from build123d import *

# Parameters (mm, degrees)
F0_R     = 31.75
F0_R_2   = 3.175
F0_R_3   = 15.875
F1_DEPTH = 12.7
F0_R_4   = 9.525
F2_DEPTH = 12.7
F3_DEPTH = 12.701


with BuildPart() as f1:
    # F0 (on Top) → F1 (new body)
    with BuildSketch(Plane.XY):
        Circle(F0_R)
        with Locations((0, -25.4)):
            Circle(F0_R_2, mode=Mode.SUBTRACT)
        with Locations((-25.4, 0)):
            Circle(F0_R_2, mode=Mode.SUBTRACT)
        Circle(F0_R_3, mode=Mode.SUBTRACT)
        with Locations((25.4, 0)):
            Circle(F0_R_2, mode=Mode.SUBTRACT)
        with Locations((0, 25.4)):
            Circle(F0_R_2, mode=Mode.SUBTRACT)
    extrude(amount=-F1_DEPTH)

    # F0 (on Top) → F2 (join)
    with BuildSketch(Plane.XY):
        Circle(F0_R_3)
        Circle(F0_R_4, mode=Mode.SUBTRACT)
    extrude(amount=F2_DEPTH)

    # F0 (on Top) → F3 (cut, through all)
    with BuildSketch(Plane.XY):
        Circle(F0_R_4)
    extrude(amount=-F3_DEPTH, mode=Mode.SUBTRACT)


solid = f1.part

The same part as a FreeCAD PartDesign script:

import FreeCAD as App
import Part
import Sketcher
from FreeCAD import Vector
Q = App.Units.Quantity

doc = App.newDocument("Part")
body = doc.addObject("PartDesign::Body", "Body")
body.AllowCompound = True

# Sketch on XY plane
sketch1 = doc.addObject("Sketcher::SketchObject", "Sketch")
body.addObject(sketch1)
sketch1.AttachmentSupport = (doc.XY_Plane, [""])
sketch1.MapMode = "FlatFace"
sketch1.addGeometry(Part.Circle(Vector(0, 0, 0), Vector(0, 0, 1), 31.8), False)
sketch1.addGeometry(Part.Circle(Vector(0, -25.4, 0), Vector(0, 0, 1), 3.2), False)
sketch1.addGeometry(Part.Circle(Vector(0, 0, 0), Vector(0, 0, 1), 15.9), False)
sketch1.addGeometry(Part.Circle(Vector(-25.4, 0, 0), Vector(0, 0, 1), 3.2), False)
sketch1.addGeometry(Part.Circle(Vector(25.4, 0, 0), Vector(0, 0, 1), 3.2), False)
sketch1.addGeometry(Part.Circle(Vector(0, 25.4, 0), Vector(0, 0, 1), 3.2), False)
sketch1.addConstraint(Sketcher.Constraint("Coincident", 0, 3, -1, 1))
sketch1.addConstraint(Sketcher.Constraint("Coincident", 2, 3, -1, 1))
sketch1.addConstraint(Sketcher.Constraint("Equal", 1, 3))
sketch1.addConstraint(Sketcher.Constraint("Equal", 3, 4))
sketch1.addConstraint(Sketcher.Constraint("Equal", 4, 5))
sketch1.addConstraint(Sketcher.Constraint("Symmetric", 3, 3, 4, 3, -1, 1))
sketch1.addConstraint(Sketcher.Constraint("Symmetric", 1, 3, 5, 3, -1, 1))
sketch1.addConstraint(Sketcher.Constraint("PointOnObject", 1, 3, -2))
sketch1.addConstraint(Sketcher.Constraint("PointOnObject", 3, 3, -1))
sketch1.addConstraint(Sketcher.Constraint("Diameter", 0, Q("2.5 in")))
sketch1.addConstraint(Sketcher.Constraint("Diameter", 1, Q("0.25 in")))
sketch1.addConstraint(Sketcher.Constraint("Diameter", 2, Q("1.25 in")))
sketch1.addConstraint(Sketcher.Constraint("DistanceY", 1, 3, -1, 1, Q("1 in")))
sketch1.addConstraint(Sketcher.Constraint("DistanceX", 3, 3, -1, 1, Q("1 in")))
pad1 = doc.addObject("PartDesign::Pad", "Pad")
body.addObject(pad1)
pad1.Profile = sketch1
pad1.Length = Q("0.5 in")
pad1.Reversed = True

# Sketch on XY plane
sketch2 = doc.addObject("Sketcher::SketchObject", "Sketch001")
body.addObject(sketch2)
sketch2.AttachmentSupport = (doc.XY_Plane, [""])
sketch2.MapMode = "FlatFace"
sketch2.addGeometry(Part.Circle(Vector(0, 0, 0), Vector(0, 0, 1), 16), False)
sketch2.addGeometry(Part.Circle(Vector(0, 0, 0), Vector(0, 0, 1), 10), False)
sketch2.addConstraint(Sketcher.Constraint("Coincident", 0, 3, -1, 1))
sketch2.addConstraint(Sketcher.Constraint("Coincident", 1, 3, -1, 1))
sketch2.addConstraint(Sketcher.Constraint("Diameter", 0, Q("1.25 in")))
sketch2.addConstraint(Sketcher.Constraint("Diameter", 1, Q("0.75 in")))
pad2 = doc.addObject("PartDesign::Pad", "Pad001")
body.addObject(pad2)
pad2.Profile = sketch2
pad2.Length = Q("0.5 in")

# Sketch on XY plane
sketch3 = doc.addObject("Sketcher::SketchObject", "Sketch002")
body.addObject(sketch3)
sketch3.AttachmentSupport = (doc.XY_Plane, [""])
sketch3.MapMode = "FlatFace"
sketch3.addGeometry(Part.Circle(Vector(0, 0, 0), Vector(0, 0, 1), 10), False)
sketch3.addConstraint(Sketcher.Constraint("Coincident", 0, 3, -1, 1))
sketch3.addConstraint(Sketcher.Constraint("Diameter", 0, Q("0.75 in")))
pocket1 = doc.addObject("PartDesign::Pocket", "Pocket")
body.addObject(pocket1)
pocket1.Profile = sketch3
pocket1.Type = "ThroughAll"

doc.recompute()
